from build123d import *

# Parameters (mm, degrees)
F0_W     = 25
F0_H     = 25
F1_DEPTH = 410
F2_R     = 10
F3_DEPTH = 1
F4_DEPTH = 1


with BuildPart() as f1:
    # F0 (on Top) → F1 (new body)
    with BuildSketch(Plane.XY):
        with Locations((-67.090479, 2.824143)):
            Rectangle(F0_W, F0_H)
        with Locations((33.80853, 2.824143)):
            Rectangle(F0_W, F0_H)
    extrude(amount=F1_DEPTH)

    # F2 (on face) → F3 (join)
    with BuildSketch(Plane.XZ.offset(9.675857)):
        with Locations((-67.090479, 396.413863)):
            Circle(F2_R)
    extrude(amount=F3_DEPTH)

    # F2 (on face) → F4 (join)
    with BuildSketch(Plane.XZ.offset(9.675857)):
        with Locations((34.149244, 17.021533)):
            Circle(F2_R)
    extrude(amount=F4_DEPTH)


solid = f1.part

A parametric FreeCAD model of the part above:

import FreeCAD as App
import Part
import Sketcher
Q = App.Units.Quantity

doc = App.newDocument("Part")
body = doc.addObject("PartDesign::Body", "Body")
body.AllowCompound = True

sketch1 = body.newObject("Sketcher::SketchObject", "Sketch")
sketch1.AttachmentSupport = (doc.getObject("XY_Plane"), [""])
sketch1.MapMode = "FlatFace"
sketch1.addGeometry(Part.LineSegment(App.Vector(-80, 15, 0), App.Vector(-80, -10, 0)), False)
sketch1.addGeometry(Part.LineSegment(App.Vector(-80, -10, 0), App.Vector(-55, -10, 0)), False)
sketch1.addGeometry(Part.LineSegment(App.Vector(-55, -10, 0), App.Vector(-55, 15, 0)), False)
sketch1.addGeometry(Part.LineSegment(App.Vector(-55, 15, 0), App.Vector(-80, 15, 0)), False)
sketch1.addGeometry(Part.LineSegment(App.Vector(21, 15, 0), App.Vector(21, -10, 0)), False)
sketch1.addGeometry(Part.LineSegment(App.Vector(21, -10, 0), App.Vector(46, -10, 0)), False)
sketch1.addGeometry(Part.LineSegment(App.Vector(46, -10, 0), App.Vector(46, 15, 0)), False)
sketch1.addGeometry(Part.LineSegment(App.Vector(46, 15, 0), App.Vector(21, 15, 0)), False)
sketch1.addConstraint(Sketcher.Constraint("Coincident", 0, 2, 1, 1))
sketch1.addConstraint(Sketcher.Constraint("Coincident", 1, 2, 2, 1))
sketch1.addConstraint(Sketcher.Constraint("Coincident", 2, 2, 3, 1))
sketch1.addConstraint(Sketcher.Constraint("Coincident", 3, 2, 0, 1))
sketch1.addConstraint(Sketcher.Constraint("Coincident", 4, 2, 5, 1))
sketch1.addConstraint(Sketcher.Constraint("Coincident", 5, 2, 6, 1))
sketch1.addConstraint(Sketcher.Constraint("Coincident", 6, 2, 7, 1))
sketch1.addConstraint(Sketcher.Constraint("Coincident", 7, 2, 4, 1))
sketch1.addConstraint(Sketcher.Constraint("Vertical", 0))
sketch1.addConstraint(Sketcher.Constraint("Horizontal", 1))
sketch1.addConstraint(Sketcher.Constraint("Vertical", 2))
sketch1.addConstraint(Sketcher.Constraint("Horizontal", 3))
sketch1.addConstraint(Sketcher.Constraint("Vertical", 4))
sketch1.addConstraint(Sketcher.Constraint("Horizontal", 5))
sketch1.addConstraint(Sketcher.Constraint("Vertical", 6))
sketch1.addConstraint(Sketcher.Constraint("Horizontal", 7))
sketch1.addConstraint(Sketcher.Constraint("Horizontal", 1, 2, 4, 2))
sketch1.addConstraint(Sketcher.Constraint("Horizontal", 3, 2, 6, 2))
sketch1.addConstraint(Sketcher.Constraint("Equal", 3, 5))
sketch1.addConstraint(Sketcher.Constraint("Equal", 7, 0))
sketch1.addConstraint(Sketcher.Constraint("DistanceX", 1, 1, 1, 2, Q("25 mm")))
sketch1.addConstraint(Sketcher.Constraint("DistanceX", 0, 2, -1, 1, Q("79.590479 mm")))
sketch1.addConstraint(Sketcher.Constraint("DistanceX", -1, 1, 4, 2, Q("21.30853 mm")))
sketch1.addConstraint(Sketcher.Constraint("DistanceY", 0, 2, -1, 1, Q("9.675857 mm")))
pad1 = body.newObject("PartDesign::Pad", "Pad")
pad1.Profile = sketch1
pad1.Length = 410

sketch2 = body.newObject("Sketcher::SketchObject", "Sketch001")
sketch2.AttachmentSupport = (doc.getObject("XZ_Plane"), [""])
sketch2.MapMode = "FlatFace"
sketch2.AttachmentOffset = App.Placement(App.Vector(0, 0, 9.675857), App.Rotation())
sketch2.addGeometry(Part.Circle(App.Vector(-67, 396, 0), App.Vector(0, 0, 1), 10), False)
sketch2.addConstraint(Sketcher.Constraint("Diameter", 0, Q("20 mm")))
sketch2.addConstraint(Sketcher.Constraint("DistanceX", 0, 3, -1, 1, Q("67.090479 mm")))
sketch2.addConstraint(Sketcher.Constraint("DistanceY", -1, 1, 0, 3, Q("396.413863 mm")))
pad2 = body.newObject("PartDesign::Pad", "Pad001")
pad2.Profile = sketch2
pad2.Length = 1

sketch3 = body.newObject("Sketcher::SketchObject", "Sketch002")
sketch3.AttachmentSupport = (doc.getObject("XZ_Plane"), [""])
sketch3.MapMode = "FlatFace"
sketch3.AttachmentOffset = App.Placement(App.Vector(0, 0, 9.675857), App.Rotation())
sketch3.addGeometry(Part.Circle(App.Vector(34, 17, 0), App.Vector(0, 0, 1), 10), False)
sketch3.addConstraint(Sketcher.Constraint("Diameter", 0, Q("20 mm")))
sketch3.addConstraint(Sketcher.Constraint("DistanceX", -1, 1, 0, 3, Q("34.149244 mm")))
sketch3.addConstraint(Sketcher.Constraint("DistanceY", -1, 1, 0, 3, Q("17.021533 mm")))
pad3 = body.newObject("PartDesign::Pad", "Pad002")
pad3.Profile = sketch3
pad3.Length = 1

doc.recompute()
